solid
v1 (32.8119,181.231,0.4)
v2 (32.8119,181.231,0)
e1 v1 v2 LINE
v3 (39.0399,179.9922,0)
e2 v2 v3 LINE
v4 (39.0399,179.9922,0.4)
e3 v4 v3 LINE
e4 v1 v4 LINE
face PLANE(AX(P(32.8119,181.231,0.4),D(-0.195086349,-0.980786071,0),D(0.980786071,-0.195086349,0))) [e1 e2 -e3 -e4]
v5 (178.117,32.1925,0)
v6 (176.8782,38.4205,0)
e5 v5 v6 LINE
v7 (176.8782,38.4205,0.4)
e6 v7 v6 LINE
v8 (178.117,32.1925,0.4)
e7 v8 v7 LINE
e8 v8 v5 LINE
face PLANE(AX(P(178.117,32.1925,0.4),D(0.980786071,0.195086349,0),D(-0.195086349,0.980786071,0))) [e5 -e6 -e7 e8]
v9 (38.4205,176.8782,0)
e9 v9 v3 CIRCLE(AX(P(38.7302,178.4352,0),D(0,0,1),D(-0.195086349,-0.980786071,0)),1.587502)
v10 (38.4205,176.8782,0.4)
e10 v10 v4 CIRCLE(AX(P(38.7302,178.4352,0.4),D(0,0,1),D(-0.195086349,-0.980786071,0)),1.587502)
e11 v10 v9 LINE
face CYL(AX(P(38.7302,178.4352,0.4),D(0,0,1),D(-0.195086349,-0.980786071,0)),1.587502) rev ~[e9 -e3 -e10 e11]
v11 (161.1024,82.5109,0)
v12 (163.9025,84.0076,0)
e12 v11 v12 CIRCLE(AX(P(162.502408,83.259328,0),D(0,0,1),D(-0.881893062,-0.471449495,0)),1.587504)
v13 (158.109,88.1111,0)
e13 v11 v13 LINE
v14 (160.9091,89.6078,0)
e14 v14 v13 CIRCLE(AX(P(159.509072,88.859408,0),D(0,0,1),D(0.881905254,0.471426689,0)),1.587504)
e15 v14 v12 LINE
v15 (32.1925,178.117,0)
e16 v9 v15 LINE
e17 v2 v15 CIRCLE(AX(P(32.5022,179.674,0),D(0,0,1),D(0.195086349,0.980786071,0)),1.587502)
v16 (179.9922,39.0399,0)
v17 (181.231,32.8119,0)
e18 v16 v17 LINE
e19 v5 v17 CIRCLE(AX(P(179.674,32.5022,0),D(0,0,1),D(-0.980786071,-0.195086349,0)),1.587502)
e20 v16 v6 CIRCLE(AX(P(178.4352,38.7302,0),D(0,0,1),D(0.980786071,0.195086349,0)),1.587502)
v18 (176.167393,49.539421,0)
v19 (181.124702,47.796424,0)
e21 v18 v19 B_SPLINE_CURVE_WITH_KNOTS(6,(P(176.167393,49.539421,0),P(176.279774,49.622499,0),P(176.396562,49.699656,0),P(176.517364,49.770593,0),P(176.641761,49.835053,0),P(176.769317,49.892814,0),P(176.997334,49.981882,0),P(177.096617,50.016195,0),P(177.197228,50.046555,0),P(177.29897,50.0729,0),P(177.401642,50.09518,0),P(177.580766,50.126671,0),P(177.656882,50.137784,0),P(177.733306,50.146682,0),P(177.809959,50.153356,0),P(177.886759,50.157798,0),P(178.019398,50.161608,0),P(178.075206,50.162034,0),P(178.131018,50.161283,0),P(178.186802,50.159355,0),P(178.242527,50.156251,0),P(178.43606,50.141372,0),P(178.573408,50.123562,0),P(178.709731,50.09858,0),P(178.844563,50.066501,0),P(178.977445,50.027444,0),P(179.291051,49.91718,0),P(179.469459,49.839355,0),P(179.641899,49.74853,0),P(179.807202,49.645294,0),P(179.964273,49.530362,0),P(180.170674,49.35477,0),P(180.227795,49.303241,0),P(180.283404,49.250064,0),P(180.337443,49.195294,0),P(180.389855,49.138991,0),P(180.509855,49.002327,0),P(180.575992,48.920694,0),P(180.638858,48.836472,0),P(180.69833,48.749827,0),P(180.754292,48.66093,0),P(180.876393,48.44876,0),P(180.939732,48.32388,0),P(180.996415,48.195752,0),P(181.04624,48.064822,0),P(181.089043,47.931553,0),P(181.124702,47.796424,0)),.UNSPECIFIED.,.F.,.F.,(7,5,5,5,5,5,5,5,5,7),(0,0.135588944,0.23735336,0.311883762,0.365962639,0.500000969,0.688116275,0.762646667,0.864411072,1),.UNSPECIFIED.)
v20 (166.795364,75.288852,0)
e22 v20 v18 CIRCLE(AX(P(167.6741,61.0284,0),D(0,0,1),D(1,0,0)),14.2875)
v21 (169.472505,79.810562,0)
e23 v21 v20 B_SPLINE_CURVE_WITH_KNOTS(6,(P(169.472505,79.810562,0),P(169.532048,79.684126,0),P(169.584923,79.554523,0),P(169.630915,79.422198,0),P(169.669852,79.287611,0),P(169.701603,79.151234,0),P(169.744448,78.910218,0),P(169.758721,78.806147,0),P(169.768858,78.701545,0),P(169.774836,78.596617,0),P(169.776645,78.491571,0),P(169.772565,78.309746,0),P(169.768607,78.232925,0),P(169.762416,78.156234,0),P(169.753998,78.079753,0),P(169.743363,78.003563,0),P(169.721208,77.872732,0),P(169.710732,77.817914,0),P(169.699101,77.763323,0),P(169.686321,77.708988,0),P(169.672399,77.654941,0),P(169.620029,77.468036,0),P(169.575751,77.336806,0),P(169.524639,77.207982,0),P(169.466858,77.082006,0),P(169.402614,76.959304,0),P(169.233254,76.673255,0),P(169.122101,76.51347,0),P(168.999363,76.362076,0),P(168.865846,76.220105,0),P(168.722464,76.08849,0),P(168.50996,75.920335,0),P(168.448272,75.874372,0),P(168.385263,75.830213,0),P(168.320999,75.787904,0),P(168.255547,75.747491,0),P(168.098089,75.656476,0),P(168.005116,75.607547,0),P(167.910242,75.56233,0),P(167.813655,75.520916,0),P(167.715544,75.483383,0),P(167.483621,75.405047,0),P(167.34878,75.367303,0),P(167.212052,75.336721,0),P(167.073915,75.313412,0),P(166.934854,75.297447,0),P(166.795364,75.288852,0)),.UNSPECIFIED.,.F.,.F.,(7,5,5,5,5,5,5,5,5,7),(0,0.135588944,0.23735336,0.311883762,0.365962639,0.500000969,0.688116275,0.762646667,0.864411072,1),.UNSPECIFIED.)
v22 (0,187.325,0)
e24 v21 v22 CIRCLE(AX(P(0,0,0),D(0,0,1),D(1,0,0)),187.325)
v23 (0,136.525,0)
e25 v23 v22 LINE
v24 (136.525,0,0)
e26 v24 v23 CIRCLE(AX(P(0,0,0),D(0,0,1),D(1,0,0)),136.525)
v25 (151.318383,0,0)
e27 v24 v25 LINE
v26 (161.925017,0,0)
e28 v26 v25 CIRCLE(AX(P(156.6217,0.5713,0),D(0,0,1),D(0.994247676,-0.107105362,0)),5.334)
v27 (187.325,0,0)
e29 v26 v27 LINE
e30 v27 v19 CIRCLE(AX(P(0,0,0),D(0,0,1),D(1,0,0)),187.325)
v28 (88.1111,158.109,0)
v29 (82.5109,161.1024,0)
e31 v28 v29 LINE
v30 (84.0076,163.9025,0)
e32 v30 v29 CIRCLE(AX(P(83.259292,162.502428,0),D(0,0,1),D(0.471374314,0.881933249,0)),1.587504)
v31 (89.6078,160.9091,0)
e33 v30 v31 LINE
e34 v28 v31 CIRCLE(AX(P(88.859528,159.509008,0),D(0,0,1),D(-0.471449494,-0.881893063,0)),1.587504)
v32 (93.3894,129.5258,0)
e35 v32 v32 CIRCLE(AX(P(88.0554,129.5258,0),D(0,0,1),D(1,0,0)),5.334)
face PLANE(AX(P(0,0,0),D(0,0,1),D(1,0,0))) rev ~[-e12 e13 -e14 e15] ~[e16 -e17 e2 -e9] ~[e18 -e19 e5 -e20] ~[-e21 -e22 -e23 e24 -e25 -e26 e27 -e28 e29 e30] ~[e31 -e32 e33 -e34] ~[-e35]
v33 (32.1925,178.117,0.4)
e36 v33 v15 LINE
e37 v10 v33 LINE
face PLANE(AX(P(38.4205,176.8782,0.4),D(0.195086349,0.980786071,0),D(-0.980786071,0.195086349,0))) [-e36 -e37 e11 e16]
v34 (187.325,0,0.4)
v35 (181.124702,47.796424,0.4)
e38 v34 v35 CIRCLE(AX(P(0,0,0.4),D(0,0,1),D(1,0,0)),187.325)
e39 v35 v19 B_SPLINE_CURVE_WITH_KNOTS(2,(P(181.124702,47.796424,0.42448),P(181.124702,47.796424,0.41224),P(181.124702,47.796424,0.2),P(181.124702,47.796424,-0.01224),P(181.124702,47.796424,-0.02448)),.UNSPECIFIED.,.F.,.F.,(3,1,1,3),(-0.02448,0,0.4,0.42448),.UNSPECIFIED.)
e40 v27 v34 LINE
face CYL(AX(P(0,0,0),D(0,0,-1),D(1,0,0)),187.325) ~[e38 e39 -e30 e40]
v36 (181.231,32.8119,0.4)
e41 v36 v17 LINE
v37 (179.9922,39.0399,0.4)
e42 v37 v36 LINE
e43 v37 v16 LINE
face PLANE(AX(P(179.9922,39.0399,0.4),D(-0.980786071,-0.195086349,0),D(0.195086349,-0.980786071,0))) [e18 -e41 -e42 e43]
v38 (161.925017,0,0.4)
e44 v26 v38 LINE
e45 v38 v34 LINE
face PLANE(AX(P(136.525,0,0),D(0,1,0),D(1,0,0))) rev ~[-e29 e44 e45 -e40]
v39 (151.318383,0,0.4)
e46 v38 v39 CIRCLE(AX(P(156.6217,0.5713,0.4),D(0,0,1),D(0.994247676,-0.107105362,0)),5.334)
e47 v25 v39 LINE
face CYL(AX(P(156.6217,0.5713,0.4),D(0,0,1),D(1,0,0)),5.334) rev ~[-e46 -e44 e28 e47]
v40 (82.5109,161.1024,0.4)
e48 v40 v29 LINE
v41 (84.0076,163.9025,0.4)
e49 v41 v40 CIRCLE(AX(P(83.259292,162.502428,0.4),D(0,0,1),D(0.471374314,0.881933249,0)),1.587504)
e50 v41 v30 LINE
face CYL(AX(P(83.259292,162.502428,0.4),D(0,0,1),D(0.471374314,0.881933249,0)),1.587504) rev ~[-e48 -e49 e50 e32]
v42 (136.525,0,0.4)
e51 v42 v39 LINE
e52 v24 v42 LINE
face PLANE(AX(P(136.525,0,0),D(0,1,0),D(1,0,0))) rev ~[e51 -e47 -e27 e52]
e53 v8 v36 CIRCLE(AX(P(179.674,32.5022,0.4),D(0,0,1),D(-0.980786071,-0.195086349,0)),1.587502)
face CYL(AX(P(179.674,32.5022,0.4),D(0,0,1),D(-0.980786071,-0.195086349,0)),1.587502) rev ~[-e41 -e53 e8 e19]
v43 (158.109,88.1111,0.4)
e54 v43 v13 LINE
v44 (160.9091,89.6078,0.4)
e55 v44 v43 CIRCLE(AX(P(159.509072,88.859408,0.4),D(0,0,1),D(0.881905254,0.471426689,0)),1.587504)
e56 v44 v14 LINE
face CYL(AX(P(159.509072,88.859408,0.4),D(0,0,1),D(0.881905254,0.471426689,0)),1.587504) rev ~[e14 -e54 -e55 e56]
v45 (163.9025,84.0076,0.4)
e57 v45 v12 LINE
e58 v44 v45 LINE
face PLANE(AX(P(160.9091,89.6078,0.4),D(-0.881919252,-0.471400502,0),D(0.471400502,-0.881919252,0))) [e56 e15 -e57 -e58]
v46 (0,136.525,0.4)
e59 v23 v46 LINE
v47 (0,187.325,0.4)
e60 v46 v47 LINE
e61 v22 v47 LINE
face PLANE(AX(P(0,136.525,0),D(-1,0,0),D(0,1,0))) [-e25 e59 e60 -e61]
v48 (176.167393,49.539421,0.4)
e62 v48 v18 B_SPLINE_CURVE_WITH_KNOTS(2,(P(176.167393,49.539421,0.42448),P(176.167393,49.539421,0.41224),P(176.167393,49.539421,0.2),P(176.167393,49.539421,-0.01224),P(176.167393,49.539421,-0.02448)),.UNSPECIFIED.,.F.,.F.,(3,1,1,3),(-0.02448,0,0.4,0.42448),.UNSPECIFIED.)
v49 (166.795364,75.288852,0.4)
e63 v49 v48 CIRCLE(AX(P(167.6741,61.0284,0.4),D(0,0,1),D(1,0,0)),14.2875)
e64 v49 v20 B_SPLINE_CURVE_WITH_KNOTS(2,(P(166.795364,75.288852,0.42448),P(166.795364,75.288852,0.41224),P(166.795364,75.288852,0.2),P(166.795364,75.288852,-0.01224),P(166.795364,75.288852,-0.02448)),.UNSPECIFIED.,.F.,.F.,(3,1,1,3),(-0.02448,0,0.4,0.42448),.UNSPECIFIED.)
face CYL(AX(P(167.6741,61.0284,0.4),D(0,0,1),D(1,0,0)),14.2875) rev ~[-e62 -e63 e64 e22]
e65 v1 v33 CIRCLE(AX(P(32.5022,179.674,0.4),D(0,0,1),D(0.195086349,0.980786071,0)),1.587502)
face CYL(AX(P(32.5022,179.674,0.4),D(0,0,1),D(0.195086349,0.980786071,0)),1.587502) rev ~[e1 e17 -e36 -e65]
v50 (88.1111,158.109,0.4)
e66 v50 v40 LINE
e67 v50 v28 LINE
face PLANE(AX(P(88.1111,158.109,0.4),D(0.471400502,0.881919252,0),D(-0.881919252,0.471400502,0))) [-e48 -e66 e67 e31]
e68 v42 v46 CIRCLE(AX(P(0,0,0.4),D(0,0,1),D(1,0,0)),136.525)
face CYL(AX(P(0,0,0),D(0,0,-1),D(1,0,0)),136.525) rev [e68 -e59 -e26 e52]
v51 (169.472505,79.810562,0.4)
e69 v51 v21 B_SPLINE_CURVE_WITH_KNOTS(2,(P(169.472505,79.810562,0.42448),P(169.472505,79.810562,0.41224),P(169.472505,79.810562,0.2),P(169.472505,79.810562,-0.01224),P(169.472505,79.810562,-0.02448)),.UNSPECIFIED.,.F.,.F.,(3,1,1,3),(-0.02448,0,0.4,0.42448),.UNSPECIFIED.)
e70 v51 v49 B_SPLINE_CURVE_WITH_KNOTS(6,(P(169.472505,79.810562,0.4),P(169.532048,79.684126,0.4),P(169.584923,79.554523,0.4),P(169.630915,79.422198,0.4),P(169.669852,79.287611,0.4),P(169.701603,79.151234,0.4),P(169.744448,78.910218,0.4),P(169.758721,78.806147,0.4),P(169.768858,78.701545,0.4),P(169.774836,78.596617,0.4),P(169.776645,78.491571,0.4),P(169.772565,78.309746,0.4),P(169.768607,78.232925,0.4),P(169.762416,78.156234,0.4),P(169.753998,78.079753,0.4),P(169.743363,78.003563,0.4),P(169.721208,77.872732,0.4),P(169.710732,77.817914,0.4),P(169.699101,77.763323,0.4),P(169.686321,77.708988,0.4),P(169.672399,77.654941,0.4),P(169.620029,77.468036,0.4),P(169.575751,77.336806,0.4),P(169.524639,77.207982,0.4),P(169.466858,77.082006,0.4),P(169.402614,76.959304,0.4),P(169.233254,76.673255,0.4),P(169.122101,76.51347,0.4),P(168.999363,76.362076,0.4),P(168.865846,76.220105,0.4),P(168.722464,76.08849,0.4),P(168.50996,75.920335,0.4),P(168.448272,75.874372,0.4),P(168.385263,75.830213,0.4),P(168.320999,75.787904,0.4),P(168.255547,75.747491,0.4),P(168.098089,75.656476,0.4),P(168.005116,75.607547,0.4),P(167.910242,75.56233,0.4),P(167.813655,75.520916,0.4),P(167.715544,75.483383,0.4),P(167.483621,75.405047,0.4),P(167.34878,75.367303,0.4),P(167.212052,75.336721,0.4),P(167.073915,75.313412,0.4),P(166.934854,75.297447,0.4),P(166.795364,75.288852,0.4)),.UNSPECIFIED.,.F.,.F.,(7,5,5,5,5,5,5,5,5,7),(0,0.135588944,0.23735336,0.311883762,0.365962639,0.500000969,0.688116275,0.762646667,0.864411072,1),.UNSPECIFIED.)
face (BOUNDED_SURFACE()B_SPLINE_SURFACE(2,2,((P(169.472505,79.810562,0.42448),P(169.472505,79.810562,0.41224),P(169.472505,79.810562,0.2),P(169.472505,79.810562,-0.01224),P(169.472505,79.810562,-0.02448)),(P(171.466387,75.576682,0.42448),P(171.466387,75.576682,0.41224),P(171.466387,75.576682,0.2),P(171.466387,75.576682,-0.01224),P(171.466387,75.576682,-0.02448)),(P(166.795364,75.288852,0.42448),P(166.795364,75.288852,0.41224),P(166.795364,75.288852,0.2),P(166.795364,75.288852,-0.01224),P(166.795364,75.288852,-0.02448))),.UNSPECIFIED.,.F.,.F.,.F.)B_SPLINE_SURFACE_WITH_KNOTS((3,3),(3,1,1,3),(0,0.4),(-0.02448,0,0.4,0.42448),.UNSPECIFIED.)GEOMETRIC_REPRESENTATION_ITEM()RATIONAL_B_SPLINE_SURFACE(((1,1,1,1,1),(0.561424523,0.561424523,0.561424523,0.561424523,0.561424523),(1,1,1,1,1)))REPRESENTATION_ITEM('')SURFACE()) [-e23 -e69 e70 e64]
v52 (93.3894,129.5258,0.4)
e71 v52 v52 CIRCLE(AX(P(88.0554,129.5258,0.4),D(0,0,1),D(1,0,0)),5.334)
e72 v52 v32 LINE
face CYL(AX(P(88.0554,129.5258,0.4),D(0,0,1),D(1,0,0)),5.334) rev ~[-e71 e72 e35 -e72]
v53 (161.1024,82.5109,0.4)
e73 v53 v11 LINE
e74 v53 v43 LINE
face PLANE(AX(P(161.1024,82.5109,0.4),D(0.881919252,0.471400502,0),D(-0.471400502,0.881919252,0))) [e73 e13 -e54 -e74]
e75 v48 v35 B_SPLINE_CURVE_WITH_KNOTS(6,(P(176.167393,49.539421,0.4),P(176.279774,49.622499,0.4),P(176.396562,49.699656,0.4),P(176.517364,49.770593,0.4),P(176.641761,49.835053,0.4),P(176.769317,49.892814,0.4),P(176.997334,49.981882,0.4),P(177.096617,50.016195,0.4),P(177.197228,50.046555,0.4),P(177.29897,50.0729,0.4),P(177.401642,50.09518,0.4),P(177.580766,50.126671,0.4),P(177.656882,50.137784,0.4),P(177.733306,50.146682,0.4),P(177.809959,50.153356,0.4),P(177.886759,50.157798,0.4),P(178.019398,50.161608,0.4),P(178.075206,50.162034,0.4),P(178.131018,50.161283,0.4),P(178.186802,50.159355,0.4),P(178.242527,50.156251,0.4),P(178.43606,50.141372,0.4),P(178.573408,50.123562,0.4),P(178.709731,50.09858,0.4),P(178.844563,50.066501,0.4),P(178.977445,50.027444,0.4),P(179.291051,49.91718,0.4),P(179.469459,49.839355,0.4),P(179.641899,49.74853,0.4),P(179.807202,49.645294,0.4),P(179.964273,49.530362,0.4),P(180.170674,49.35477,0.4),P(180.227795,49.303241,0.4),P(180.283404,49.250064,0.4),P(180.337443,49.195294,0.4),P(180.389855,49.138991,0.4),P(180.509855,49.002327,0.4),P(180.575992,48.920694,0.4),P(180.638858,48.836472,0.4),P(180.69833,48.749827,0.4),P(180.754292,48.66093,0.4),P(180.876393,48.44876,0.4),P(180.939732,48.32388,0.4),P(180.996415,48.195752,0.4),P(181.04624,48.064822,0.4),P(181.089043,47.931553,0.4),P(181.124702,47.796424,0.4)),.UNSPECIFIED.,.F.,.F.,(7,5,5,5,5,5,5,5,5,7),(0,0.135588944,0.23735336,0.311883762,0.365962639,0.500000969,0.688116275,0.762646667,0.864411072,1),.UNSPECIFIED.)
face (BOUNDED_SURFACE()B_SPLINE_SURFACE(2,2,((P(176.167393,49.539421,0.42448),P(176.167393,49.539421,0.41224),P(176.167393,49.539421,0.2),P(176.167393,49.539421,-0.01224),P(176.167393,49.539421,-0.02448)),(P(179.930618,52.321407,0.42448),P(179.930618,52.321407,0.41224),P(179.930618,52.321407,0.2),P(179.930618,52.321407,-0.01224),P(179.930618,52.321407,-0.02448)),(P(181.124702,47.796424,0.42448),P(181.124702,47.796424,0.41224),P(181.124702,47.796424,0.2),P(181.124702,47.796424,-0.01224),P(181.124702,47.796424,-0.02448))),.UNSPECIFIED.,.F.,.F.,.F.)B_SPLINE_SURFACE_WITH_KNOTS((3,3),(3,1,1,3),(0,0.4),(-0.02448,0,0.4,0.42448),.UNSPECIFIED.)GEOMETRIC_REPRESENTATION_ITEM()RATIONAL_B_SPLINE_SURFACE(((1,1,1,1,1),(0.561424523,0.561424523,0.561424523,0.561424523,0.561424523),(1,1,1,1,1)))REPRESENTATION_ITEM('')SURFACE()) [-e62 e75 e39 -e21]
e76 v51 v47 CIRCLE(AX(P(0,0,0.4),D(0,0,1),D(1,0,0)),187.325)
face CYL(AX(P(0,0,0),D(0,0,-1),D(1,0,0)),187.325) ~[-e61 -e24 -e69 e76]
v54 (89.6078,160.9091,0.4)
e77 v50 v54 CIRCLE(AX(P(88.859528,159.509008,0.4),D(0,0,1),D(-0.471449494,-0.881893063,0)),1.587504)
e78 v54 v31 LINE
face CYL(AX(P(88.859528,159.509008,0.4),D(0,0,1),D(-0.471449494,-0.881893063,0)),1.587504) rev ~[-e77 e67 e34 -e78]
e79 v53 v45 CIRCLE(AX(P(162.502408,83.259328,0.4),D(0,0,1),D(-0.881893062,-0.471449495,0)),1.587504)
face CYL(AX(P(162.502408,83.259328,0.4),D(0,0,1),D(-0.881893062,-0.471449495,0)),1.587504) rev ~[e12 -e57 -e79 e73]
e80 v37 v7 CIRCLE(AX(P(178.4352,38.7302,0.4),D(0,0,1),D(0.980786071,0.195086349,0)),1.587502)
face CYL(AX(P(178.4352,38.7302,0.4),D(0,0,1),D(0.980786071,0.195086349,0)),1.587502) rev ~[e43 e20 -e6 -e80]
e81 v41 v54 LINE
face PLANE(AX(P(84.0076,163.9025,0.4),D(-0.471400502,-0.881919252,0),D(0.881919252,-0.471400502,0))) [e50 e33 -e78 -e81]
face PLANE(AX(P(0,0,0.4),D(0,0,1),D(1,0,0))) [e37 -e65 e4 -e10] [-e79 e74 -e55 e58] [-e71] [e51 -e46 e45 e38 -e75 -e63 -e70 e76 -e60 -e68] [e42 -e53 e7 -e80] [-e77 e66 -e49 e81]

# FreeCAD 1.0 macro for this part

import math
import FreeCAD as App
import Part
import Sketcher

V = App.Vector
Q = App.Units.Quantity


def edges_at(feature, points):
    """Names of the edges that pass closest to the given points."""
    edges = feature.Shape.Edges
    near = lambda p: min(range(len(edges)), key=lambda i: edges[i].distToShape(Part.Vertex(*p))[0])
    return sorted({f"Edge{near(p) + 1}" for p in points})

doc = App.newDocument("Part")
body = doc.addObject("PartDesign::Body", "Body")

# Sketch on XY plane
sketch1 = body.newObject("Sketcher::SketchObject", "Sketch")
sketch1.AttachmentSupport = (doc.getObject("XY_Plane"), [""])
sketch1.MapMode = "FlatFace"
sketch1.addGeometry([
    Part.LineSegment(V(137, 0, 0), V(187, 0, 0)),
    Part.ArcOfCircle(Part.Circle(V(0, 0, 0), V(0, 0, 1), 187), math.radians(0), math.radians(90)),
    Part.LineSegment(V(0, 187, 0), V(0, 137, 0)),
    Part.ArcOfCircle(Part.Circle(V(0, 0, 0), V(0, 0, 1), 137), math.radians(0), math.radians(90)),
], False)
sketch1.addConstraint([
    Sketcher.Constraint("Coincident", 0, 2, 1, 1),
    Sketcher.Constraint("Coincident", 1, 2, 2, 1),
    Sketcher.Constraint("Coincident", 2, 2, 3, 2),
    Sketcher.Constraint("Coincident", 3, 1, 0, 1),
    Sketcher.Constraint("Horizontal", 0),
    Sketcher.Constraint("Vertical", 2),
    Sketcher.Constraint("Coincident", 1, 3, -1, 1),
    Sketcher.Constraint("Coincident", 3, 3, -1, 1),
    Sketcher.Constraint("PointOnObject", 0, 2, -1),
    Sketcher.Constraint("PointOnObject", 1, 2, -2),
    Sketcher.Constraint("Radius", 1, Q("7.375 in")),
    Sketcher.Constraint("Radius", 3, Q("5.375 in")),
])
pad1 = body.newObject("PartDesign::Pad", "Pad")
pad1.Profile = sketch1
pad1.Length = 0.4

# Sketch on XY plane
sketch2 = body.newObject("Sketcher::SketchObject", "Sketch001")
sketch2.AttachmentSupport = (doc.getObject("XY_Plane"), [""])
sketch2.MapMode = "FlatFace"
sketch2.AttachmentOffset = App.Placement(V(0, 0, 0.4), App.Rotation())
sketch2.addGeometry([
    Part.LineSegment(V(176.9, 38.4, 0), V(178.1, 32.2, 0)),  # 0
    Part.ArcOfCircle(Part.Circle(V(179.7, 32.5, 0), V(0, 0, 1), 1.6), math.radians(-169), math.radians(11)),  # 1
    Part.LineSegment(V(181.2, 32.8, 0), V(180, 39, 0)),  # 2
    Part.ArcOfCircle(Part.Circle(V(178.4, 38.7, 0), V(0, 0, 1), 1.6), math.radians(11), math.radians(191)),  # 3
    Part.LineSegment(V(158.1, 88.1, 0), V(161.1, 82.5, 0)),  # 4
    Part.ArcOfCircle(Part.Circle(V(162.5, 83.3, 0), V(0, 0, 1), 1.6), math.radians(-152), math.radians(28)),  # 5
    Part.LineSegment(V(163.9, 84, 0), V(160.9, 89.6, 0)),  # 6
    Part.ArcOfCircle(Part.Circle(V(159.5, 88.9, 0), V(0, 0, 1), 1.6), math.radians(28), math.radians(208)),  # 7
    Part.Circle(V(156.6, 0.6, 0), V(0, 0, 1), 5.3),  # 8
    Part.LineSegment(V(89.6, 160.9, 0), V(84, 163.9, 0)),  # 9
    Part.ArcOfCircle(Part.Circle(V(83.3, 162.5, 0), V(0, 0, 1), 1.6), math.radians(62), math.radians(242)),  # 10
    Part.LineSegment(V(82.5, 161.1, 0), V(88.1, 158.1, 0)),  # 11
    Part.ArcOfCircle(Part.Circle(V(88.9, 159.5, 0), V(0, 0, 1), 1.6), math.radians(-118), math.radians(62)),  # 12
    Part.LineSegment(V(39, 180, 0), V(32.8, 181.2, 0)),  # 13
    Part.ArcOfCircle(Part.Circle(V(32.5, 179.7, 0), V(0, 0, 1), 1.6), math.radians(79), math.radians(259)),  # 14
    Part.LineSegment(V(32.2, 178.1, 0), V(38.4, 176.9, 0)),  # 15
    Part.ArcOfCircle(Part.Circle(V(38.7, 178.4, 0), V(0, 0, 1), 1.6), math.radians(-101), math.radians(79)),  # 16
    Part.Circle(V(88.1, 129.5, 0), V(0, 0, 1), 5.3),  # 17
    Part.Circle(V(167.7, 61, 0), V(0, 0, 1), 14.3),  # 18
], False)
sketch2.addConstraint([
    Sketcher.Constraint("Tangent", 0, 2, 1, 1),
    Sketcher.Constraint("Tangent", 1, 2, 2, 1),
    Sketcher.Constraint("Tangent", 2, 2, 3, 1),
    Sketcher.Constraint("Tangent", 3, 2, 0, 1),
    Sketcher.Constraint("Tangent", 4, 2, 5, 1),
    Sketcher.Constraint("Tangent", 5, 2, 6, 1),
    Sketcher.Constraint("Tangent", 6, 2, 7, 1),
    Sketcher.Constraint("Tangent", 7, 2, 4, 1),
    Sketcher.Constraint("Tangent", 9, 2, 10, 1),
    Sketcher.Constraint("Tangent", 10, 2, 11, 1),
    Sketcher.Constraint("Tangent", 11, 2, 12, 1),
    Sketcher.Constraint("Tangent", 12, 2, 9, 1),
    Sketcher.Constraint("Tangent", 13, 2, 14, 1),
    Sketcher.Constraint("Tangent", 14, 2, 15, 1),
    Sketcher.Constraint("Tangent", 15, 2, 16, 1),
    Sketcher.Constraint("Tangent", 16, 2, 13, 1),
    Sketcher.Constraint("Equal", 1, 3),
    Sketcher.Constraint("Equal", 3, 5),
    Sketcher.Constraint("Equal", 5, 7),
    Sketcher.Constraint("Equal", 7, 10),
    Sketcher.Constraint("Equal", 10, 12),
    Sketcher.Constraint("Equal", 12, 14),
    Sketcher.Constraint("Equal", 14, 16),
    Sketcher.Constraint("Equal", 8, 17),
    Sketcher.Constraint("Equal", 2, 4),
    Sketcher.Constraint("Equal", 6, 9),
    Sketcher.Constraint("Equal", 11, 13),
    Sketcher.Constraint("Diameter", 18, Q("1.125 in")),
    Sketcher.Constraint("Diameter", 8, Q("0.42 in")),
    Sketcher.Constraint("Radius", 1, Q("0.0625 in")),
    Sketcher.Constraint("Distance", 0, Q("0.25 in")),
    Sketcher.Constraint("Angle", 0, Q("-78.7502 deg")),
    Sketcher.Constraint("Angle", 13, Q("168.7502 deg")),
    Sketcher.Constraint("DistanceX", -1, 1, 3, 3, Q("7.025 in")),
    Sketcher.Constraint("DistanceY", -1, 1, 16, 3, Q("7.025 in")),
    Sketcher.Constraint("DistanceY", -1, 1, 2, 2, Q("1.537 in")),
    Sketcher.Constraint("DistanceX", -1, 1, 6, 2, Q("6.335 in")),
    Sketcher.Constraint("DistanceY", -1, 1, 12, 2, Q("6.335 in")),
    Sketcher.Constraint("DistanceX", -1, 1, 16, 2, Q("1.537 in")),
    Sketcher.Constraint("DistanceY", -1, 1, 7, 3, Q("3.4984 in")),
    Sketcher.Constraint("DistanceX", -1, 1, 8, 3, Q("6.1662 in")),
    Sketcher.Constraint("DistanceY", -1, 1, 8, 3, Q("0.0225 in")),
    Sketcher.Constraint("DistanceX", -1, 1, 12, 3, Q("3.4984 in")),
    Sketcher.Constraint("DistanceY", -1, 1, 18, 3, Q("2.4027 in")),
    Sketcher.Constraint("DistanceY", 1, 3, 5, 3, Q("1.9983 in")),
    Sketcher.Constraint("DistanceX", 10, 3, 5, 3, Q("3.1198 in")),
    Sketcher.Constraint("DistanceY", 17, 3, 10, 3, Q("1.2983 in")),
    Sketcher.Constraint("DistanceX", 5, 3, 18, 3, Q("0.2036 in")),
    Sketcher.Constraint("DistanceX", 10, 2, 17, 3, Q("0.2183 in")),
])
pocket1 = body.newObject("PartDesign::Pocket", "Pocket")
pocket1.Profile = sketch2
pocket1.Type = "ThroughAll"
doc.recompute()

fillet = body.newObject("PartDesign::Fillet", "Fillet")
fillet.Base = (pocket1, edges_at(pocket1, [(171.781, 74.713, 0.2), (179.616, 53.185, 0.2)]))
fillet.Radius = Q("0.125 in")

doc.recompute()
